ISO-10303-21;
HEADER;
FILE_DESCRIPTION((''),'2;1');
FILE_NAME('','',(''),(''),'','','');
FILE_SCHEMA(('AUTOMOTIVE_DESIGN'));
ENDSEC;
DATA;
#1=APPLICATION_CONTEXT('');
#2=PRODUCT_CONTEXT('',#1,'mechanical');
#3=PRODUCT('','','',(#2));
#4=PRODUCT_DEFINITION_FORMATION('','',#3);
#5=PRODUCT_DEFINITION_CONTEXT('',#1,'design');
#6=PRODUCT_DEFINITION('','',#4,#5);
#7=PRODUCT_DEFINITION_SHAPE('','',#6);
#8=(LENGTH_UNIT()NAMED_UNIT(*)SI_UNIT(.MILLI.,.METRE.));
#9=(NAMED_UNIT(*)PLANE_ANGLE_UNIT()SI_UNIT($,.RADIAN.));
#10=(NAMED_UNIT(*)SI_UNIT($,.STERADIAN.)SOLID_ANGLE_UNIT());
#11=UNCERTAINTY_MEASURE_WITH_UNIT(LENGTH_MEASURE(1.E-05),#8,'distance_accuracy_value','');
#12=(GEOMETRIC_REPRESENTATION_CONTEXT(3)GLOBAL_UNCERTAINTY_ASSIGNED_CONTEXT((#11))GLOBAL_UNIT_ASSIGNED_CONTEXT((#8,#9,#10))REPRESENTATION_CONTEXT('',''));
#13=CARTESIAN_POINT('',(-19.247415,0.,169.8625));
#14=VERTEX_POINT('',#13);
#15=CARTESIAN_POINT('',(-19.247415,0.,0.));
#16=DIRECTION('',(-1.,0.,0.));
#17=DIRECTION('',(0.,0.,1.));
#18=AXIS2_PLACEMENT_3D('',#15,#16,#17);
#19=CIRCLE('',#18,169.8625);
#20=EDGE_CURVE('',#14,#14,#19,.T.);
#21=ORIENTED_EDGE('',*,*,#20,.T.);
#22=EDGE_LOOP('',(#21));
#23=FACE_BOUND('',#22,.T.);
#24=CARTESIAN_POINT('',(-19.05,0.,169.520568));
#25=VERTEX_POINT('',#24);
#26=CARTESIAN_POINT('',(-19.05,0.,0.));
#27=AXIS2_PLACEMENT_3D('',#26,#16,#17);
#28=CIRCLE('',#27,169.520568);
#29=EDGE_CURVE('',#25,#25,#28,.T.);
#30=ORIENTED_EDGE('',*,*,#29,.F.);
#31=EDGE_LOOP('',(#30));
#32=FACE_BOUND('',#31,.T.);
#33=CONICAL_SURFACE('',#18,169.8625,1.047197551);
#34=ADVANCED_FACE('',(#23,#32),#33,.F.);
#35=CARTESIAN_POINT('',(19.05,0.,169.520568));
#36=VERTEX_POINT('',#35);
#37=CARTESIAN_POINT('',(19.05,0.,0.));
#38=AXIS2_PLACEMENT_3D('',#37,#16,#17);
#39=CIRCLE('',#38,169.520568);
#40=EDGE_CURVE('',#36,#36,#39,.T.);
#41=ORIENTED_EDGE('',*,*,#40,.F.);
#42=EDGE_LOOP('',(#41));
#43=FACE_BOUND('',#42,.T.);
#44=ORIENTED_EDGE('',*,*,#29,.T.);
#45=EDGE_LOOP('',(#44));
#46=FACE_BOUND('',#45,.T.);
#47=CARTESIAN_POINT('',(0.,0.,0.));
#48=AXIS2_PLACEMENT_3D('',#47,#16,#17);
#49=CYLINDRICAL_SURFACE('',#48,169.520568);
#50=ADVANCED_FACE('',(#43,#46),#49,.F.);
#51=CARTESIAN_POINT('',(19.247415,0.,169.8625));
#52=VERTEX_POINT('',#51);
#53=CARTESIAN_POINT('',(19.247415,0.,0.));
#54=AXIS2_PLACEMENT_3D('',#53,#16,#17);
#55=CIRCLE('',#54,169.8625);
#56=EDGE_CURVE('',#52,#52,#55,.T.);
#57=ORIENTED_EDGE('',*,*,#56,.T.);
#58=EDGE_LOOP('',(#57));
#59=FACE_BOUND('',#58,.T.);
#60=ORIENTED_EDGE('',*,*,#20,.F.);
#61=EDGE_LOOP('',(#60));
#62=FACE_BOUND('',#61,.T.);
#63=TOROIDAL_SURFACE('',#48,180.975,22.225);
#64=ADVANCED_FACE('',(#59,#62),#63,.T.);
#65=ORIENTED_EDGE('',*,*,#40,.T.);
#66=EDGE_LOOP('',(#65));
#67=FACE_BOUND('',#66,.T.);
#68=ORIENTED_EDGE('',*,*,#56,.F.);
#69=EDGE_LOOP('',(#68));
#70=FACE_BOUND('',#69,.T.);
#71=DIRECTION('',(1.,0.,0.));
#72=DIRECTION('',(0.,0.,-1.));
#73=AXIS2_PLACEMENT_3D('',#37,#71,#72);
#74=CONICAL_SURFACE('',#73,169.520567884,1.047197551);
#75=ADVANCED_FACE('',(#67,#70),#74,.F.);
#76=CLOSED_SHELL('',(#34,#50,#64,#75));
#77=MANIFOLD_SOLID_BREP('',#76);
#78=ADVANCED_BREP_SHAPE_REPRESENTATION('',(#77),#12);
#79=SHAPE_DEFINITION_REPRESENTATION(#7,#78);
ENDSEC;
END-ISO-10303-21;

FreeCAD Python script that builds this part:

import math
import FreeCAD as App
import Part
import Sketcher
from FreeCAD import Vector
Q = App.Units.Quantity

doc = App.newDocument("Part")
body = doc.addObject("PartDesign::Body", "Body")

# Sketch on XY plane
sketch1 = body.newObject("Sketcher::SketchObject", "Sketch")
sketch1.AttachmentSupport = (doc.getObject("XY_Plane"), [""])
sketch1.MapMode = "FlatFace"
sketch1.addGeometry(Part.LineSegment(Vector(-19.25, 169.86, 0), Vector(-19.05, 169.52, 0)), False)
sketch1.addGeometry(Part.LineSegment(Vector(-19.05, 169.52, 0), Vector(19.05, 169.52, 0)), False)
sketch1.addGeometry(Part.LineSegment(Vector(19.05, 169.52, 0), Vector(19.25, 169.86, 0)), False)
sketch1.addGeometry(Part.ArcOfCircle(Part.Circle(Vector(0, 180.97, 0), Vector(0, 0, 1), 22.23), math.radians(-30), math.radians(210)), False)
sketch1.addConstraint(Sketcher.Constraint("Coincident", 0, 2, 1, 1))
sketch1.addConstraint(Sketcher.Constraint("Coincident", 1, 2, 2, 1))
sketch1.addConstraint(Sketcher.Constraint("Tangent", 2, 2, 3, 1))
sketch1.addConstraint(Sketcher.Constraint("Tangent", 3, 2, 0, 1))
sketch1.addConstraint(Sketcher.Constraint("Horizontal", 1))
sketch1.addConstraint(Sketcher.Constraint("Symmetric", 2, 2, 3, 2, -2))
sketch1.addConstraint(Sketcher.Constraint("DistanceX", 1, 1, 1, 2, Q("1.5 in")))
sketch1.addConstraint(Sketcher.Constraint("Angle", 0, Q("-60 deg")))
sketch1.addConstraint(Sketcher.Constraint("Radius", 3, Q("0.875 in")))
sketch1.addConstraint(Sketcher.Constraint("DistanceY", -1, 1, 3, 3, Q("7.125 in")))
revolution = body.newObject("PartDesign::Revolution", "Revolution")
revolution.Profile = sketch1
revolution.ReferenceAxis = (sketch1, ["H_Axis"])
revolution.Angle = 360

doc.recompute()
